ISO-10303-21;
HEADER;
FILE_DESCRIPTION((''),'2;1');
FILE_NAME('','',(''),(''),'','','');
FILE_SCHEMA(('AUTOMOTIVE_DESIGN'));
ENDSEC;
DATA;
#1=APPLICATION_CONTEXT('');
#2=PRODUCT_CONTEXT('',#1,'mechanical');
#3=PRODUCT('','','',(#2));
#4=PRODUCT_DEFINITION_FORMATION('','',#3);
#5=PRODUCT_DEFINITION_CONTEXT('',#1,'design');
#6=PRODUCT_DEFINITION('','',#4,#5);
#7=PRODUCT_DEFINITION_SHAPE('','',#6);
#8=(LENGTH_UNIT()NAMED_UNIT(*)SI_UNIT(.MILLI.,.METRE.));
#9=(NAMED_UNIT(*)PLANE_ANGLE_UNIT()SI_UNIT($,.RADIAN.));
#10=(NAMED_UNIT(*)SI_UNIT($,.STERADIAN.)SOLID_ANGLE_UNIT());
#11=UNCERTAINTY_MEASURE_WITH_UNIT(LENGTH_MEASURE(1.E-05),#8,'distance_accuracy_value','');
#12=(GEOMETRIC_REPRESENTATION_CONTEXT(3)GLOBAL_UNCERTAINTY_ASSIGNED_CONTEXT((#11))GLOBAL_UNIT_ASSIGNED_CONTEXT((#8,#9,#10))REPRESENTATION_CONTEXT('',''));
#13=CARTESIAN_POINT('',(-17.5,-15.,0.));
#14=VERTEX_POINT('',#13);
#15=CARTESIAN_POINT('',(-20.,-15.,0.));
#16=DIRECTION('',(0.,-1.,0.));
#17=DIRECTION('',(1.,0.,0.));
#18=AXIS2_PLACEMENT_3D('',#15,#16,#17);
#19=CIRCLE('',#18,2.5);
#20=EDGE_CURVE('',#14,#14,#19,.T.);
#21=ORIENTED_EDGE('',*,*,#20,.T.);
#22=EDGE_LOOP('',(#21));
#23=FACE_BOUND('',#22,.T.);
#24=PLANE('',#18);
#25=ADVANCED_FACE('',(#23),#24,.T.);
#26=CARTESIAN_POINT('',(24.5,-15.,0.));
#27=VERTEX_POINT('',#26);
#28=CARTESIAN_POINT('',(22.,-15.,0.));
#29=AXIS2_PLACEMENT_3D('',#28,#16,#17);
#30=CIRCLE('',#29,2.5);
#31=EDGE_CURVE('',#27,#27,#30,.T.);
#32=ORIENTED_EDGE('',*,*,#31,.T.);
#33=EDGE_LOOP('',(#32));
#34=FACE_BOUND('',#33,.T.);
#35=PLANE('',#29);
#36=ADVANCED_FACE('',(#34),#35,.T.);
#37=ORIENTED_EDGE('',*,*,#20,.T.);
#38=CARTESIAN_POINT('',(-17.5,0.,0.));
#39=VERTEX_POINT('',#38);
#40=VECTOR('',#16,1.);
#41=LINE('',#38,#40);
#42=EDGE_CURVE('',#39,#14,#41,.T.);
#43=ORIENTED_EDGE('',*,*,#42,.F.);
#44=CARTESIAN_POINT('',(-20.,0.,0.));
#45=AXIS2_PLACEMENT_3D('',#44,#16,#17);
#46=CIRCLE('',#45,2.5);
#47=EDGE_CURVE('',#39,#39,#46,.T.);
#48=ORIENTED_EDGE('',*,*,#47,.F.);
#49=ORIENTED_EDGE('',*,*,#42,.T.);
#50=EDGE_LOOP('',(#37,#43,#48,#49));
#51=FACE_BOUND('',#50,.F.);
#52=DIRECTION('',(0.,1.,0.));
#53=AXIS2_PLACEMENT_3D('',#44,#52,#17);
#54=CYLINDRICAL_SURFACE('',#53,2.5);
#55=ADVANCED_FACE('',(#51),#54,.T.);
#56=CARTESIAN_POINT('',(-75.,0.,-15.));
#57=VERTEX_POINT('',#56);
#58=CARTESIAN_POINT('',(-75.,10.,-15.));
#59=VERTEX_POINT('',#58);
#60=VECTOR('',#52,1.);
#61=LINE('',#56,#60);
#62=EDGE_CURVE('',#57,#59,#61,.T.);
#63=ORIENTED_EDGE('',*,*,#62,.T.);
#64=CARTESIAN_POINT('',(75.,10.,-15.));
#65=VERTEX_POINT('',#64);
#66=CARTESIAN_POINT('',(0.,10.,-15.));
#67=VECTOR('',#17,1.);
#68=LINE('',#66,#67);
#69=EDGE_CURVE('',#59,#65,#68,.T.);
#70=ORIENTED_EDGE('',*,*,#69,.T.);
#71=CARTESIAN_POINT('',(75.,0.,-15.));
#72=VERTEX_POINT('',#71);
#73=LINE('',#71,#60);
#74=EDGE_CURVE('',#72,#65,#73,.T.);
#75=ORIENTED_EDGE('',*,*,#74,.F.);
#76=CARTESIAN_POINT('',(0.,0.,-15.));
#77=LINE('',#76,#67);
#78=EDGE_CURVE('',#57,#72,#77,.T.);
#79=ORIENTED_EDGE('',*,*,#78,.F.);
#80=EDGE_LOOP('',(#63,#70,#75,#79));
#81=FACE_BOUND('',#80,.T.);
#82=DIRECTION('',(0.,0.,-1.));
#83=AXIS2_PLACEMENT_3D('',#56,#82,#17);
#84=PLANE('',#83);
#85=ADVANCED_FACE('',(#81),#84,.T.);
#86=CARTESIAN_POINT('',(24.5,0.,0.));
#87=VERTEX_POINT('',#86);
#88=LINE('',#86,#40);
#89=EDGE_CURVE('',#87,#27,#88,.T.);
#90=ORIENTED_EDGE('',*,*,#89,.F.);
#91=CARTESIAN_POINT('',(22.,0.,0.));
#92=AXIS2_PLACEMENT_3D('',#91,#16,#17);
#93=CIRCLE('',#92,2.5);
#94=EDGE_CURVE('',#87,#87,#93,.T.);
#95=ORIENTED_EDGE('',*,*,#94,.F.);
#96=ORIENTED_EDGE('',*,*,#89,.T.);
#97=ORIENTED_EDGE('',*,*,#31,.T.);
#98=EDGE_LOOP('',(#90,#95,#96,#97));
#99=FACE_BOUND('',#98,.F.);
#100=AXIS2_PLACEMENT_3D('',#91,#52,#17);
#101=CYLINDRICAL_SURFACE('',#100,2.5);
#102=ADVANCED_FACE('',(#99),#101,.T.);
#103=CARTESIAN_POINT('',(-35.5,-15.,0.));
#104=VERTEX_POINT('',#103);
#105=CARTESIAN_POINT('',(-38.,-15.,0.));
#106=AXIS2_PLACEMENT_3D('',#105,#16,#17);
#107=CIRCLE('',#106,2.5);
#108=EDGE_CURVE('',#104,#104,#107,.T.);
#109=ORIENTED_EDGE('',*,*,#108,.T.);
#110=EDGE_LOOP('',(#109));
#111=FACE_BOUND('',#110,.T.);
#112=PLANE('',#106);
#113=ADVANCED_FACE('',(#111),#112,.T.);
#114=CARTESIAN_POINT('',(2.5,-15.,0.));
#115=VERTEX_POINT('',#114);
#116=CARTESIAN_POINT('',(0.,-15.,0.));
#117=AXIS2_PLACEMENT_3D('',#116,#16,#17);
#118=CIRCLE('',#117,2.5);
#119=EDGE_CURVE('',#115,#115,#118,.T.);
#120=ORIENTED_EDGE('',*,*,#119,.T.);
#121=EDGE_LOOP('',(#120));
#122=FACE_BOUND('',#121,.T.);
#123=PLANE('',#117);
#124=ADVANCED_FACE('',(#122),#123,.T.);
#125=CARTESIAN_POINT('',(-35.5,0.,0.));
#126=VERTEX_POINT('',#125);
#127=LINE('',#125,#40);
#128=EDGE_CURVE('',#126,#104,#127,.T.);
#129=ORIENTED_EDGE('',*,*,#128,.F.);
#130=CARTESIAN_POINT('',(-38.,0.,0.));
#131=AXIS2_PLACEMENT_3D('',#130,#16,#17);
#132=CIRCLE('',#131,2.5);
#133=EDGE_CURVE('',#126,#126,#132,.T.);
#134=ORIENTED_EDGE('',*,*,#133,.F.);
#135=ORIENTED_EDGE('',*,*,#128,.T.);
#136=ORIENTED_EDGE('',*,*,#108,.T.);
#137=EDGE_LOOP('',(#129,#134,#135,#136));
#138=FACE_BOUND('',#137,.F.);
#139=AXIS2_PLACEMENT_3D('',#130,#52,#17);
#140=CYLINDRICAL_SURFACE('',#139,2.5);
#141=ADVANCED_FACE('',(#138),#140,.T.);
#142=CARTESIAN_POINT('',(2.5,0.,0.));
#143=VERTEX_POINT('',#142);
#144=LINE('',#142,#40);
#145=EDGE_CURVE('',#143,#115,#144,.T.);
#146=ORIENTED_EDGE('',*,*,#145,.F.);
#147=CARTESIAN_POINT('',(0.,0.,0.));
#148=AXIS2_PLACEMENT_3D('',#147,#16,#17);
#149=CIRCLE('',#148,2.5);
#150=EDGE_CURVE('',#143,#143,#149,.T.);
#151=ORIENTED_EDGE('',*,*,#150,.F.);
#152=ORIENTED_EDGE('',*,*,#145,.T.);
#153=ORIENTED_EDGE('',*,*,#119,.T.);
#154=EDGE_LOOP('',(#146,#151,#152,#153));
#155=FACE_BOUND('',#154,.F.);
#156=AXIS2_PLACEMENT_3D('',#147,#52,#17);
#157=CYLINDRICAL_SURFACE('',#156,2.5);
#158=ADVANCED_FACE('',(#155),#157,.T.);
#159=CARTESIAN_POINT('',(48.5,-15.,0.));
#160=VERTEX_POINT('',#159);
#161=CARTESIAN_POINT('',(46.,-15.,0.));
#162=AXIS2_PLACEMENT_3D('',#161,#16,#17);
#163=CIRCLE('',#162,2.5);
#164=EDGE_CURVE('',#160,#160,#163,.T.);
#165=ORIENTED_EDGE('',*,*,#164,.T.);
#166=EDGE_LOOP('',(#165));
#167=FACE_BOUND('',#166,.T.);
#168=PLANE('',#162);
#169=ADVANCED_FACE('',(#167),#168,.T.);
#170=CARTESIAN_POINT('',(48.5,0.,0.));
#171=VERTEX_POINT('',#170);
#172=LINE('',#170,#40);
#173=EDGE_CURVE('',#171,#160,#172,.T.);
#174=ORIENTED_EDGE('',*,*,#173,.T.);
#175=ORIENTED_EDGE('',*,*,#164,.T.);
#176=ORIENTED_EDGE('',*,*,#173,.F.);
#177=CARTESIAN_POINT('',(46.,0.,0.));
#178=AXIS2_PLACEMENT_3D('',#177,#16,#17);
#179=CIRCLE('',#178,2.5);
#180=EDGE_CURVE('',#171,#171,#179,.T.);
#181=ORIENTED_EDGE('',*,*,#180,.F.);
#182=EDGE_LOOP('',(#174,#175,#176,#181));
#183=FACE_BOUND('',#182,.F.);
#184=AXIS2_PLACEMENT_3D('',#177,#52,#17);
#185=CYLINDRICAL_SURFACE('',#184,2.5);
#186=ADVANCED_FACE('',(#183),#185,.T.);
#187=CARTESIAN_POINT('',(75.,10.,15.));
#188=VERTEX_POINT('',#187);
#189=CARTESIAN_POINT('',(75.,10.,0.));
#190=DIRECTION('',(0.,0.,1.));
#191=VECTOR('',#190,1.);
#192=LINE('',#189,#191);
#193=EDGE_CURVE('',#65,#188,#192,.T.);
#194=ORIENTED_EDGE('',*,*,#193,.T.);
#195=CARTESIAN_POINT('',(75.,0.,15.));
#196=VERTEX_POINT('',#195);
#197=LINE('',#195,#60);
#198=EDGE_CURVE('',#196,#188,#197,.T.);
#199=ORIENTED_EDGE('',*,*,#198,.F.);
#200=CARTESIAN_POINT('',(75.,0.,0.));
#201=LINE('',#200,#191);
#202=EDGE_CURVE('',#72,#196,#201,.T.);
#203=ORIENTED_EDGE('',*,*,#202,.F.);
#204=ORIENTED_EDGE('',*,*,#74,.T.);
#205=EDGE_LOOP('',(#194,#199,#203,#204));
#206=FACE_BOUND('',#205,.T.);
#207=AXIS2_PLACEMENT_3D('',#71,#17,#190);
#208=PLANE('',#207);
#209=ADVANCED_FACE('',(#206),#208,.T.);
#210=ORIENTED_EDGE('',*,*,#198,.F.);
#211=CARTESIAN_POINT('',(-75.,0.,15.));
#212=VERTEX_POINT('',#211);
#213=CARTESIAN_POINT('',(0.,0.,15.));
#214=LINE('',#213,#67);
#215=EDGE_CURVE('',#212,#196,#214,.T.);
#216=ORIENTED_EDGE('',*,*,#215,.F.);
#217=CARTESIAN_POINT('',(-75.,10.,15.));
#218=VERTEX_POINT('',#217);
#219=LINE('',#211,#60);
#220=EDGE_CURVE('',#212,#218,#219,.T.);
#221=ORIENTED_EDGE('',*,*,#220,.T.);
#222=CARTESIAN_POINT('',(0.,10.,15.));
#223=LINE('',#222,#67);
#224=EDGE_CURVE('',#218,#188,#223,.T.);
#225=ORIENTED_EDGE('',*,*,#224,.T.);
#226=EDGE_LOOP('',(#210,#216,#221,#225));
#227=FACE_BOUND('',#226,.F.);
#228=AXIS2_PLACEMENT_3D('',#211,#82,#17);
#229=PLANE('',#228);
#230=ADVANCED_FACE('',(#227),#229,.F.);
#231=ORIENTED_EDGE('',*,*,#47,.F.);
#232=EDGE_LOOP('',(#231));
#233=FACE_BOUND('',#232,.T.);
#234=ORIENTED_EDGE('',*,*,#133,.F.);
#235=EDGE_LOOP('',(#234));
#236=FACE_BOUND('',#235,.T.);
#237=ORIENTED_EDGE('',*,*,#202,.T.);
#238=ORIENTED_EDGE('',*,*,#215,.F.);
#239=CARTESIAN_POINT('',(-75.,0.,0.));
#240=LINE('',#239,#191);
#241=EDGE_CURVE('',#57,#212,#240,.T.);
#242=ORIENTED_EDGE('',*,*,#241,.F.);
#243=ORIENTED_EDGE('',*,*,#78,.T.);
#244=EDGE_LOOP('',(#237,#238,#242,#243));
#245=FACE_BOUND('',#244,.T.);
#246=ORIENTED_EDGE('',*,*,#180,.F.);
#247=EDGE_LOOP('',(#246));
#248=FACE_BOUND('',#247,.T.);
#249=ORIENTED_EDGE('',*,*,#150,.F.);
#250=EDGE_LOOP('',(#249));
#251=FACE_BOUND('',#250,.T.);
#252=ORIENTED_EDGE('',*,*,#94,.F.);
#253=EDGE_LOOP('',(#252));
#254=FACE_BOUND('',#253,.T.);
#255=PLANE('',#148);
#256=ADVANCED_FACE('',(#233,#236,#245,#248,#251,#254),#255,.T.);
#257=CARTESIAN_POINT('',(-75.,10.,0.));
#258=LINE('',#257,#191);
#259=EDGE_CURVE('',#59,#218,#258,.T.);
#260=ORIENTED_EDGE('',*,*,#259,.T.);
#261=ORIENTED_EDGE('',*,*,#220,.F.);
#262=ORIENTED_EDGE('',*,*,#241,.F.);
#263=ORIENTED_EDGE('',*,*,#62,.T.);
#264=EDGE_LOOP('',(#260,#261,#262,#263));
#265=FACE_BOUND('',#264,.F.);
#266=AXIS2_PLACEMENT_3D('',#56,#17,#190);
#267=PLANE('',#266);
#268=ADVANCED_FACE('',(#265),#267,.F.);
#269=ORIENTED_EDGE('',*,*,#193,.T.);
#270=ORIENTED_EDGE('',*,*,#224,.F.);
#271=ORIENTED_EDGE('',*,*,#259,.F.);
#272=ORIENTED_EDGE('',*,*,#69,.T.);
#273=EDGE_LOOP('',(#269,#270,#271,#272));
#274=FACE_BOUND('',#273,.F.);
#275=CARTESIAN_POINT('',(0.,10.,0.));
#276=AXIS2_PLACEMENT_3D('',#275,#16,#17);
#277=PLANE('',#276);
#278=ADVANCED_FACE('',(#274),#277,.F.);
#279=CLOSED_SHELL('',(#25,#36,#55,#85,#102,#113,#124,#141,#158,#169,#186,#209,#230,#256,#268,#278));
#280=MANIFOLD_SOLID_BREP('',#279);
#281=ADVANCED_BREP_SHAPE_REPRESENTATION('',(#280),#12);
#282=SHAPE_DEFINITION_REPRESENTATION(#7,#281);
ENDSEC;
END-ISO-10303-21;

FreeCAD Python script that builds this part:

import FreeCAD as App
import Part
import Sketcher

V = App.Vector

doc = App.newDocument("Part")
body = doc.addObject("PartDesign::Body", "Body")

# Sketch on XZ plane
sketch1 = doc.addObject("Sketcher::SketchObject", "Sketch")
body.addObject(sketch1)
sketch1.AttachmentSupport = (doc.XZ_Plane, [""])
sketch1.MapMode = "FlatFace"
sketch1.addGeometry(Part.LineSegment(V(-75, 15, 0), V(-75, -15, 0)), False)
sketch1.addGeometry(Part.LineSegment(V(-75, -15, 0), V(75, -15, 0)), False)
sketch1.addGeometry(Part.LineSegment(V(75, -15, 0), V(75, 15, 0)), False)
sketch1.addGeometry(Part.LineSegment(V(75, 15, 0), V(-75, 15, 0)), False)
sketch1.addConstraint(Sketcher.Constraint("Coincident", 0, 2, 1, 1))
sketch1.addConstraint(Sketcher.Constraint("Coincident", 1, 2, 2, 1))
sketch1.addConstraint(Sketcher.Constraint("Coincident", 2, 2, 3, 1))
sketch1.addConstraint(Sketcher.Constraint("Coincident", 3, 2, 0, 1))
sketch1.addConstraint(Sketcher.Constraint("Vertical", 0))
sketch1.addConstraint(Sketcher.Constraint("Horizontal", 1))
sketch1.addConstraint(Sketcher.Constraint("Vertical", 2))
sketch1.addConstraint(Sketcher.Constraint("Horizontal", 3))
sketch1.addConstraint(Sketcher.Constraint("Symmetric", 0, 2, 2, 2, -1, 1))
sketch1.addConstraint(Sketcher.Constraint("DistanceX", 1, 1, 1, 2, 150.0))
sketch1.addConstraint(Sketcher.Constraint("DistanceY", 0, 2, 0, 1, 30.0))
pad1 = doc.addObject("PartDesign::Pad", "Pad")
body.addObject(pad1)
pad1.Profile = sketch1
pad1.Length = 10
pad1.Reversed = True

# Sketch on XZ plane
sketch2 = doc.addObject("Sketcher::SketchObject", "Sketch001")
body.addObject(sketch2)
sketch2.AttachmentSupport = (doc.XZ_Plane, [""])
sketch2.MapMode = "FlatFace"
sketch2.addGeometry(Part.Circle(V(-38, 0, 0), V(0, 0, 1), 2.5), False)
sketch2.addGeometry(Part.Circle(V(-20, 0, 0), V(0, 0, 1), 2.5), False)
sketch2.addGeometry(Part.Circle(V(0, 0, 0), V(0, 0, 1), 2.5), False)
sketch2.addGeometry(Part.Circle(V(22, 0, 0), V(0, 0, 1), 2.5), False)
sketch2.addGeometry(Part.Circle(V(46, 0, 0), V(0, 0, 1), 2.5), False)
sketch2.addConstraint(Sketcher.Constraint("Coincident", 2, 3, -1, 1))
sketch2.addConstraint(Sketcher.Constraint("Equal", 0, 1))
sketch2.addConstraint(Sketcher.Constraint("Equal", 1, 2))
sketch2.addConstraint(Sketcher.Constraint("Equal", 2, 3))
sketch2.addConstraint(Sketcher.Constraint("Equal", 3, 4))
sketch2.addConstraint(Sketcher.Constraint("PointOnObject", 0, 3, -1))
sketch2.addConstraint(Sketcher.Constraint("PointOnObject", 1, 3, -1))
sketch2.addConstraint(Sketcher.Constraint("PointOnObject", 3, 3, -1))
sketch2.addConstraint(Sketcher.Constraint("PointOnObject", 4, 3, -1))
sketch2.addConstraint(Sketcher.Constraint("Diameter", 0, 5.0))
sketch2.addConstraint(Sketcher.Constraint("DistanceX", 0, 3, -1, 1, 38.0))
sketch2.addConstraint(Sketcher.Constraint("DistanceX", 1, 3, -1, 1, 20.0))
sketch2.addConstraint(Sketcher.Constraint("DistanceX", -1, 1, 3, 3, 22.0))
sketch2.addConstraint(Sketcher.Constraint("DistanceX", -1, 1, 4, 3, 46.0))
pad2 = doc.addObject("PartDesign::Pad", "Pad001")
body.addObject(pad2)
pad2.Profile = sketch2
pad2.Length = 15

doc.recompute()
